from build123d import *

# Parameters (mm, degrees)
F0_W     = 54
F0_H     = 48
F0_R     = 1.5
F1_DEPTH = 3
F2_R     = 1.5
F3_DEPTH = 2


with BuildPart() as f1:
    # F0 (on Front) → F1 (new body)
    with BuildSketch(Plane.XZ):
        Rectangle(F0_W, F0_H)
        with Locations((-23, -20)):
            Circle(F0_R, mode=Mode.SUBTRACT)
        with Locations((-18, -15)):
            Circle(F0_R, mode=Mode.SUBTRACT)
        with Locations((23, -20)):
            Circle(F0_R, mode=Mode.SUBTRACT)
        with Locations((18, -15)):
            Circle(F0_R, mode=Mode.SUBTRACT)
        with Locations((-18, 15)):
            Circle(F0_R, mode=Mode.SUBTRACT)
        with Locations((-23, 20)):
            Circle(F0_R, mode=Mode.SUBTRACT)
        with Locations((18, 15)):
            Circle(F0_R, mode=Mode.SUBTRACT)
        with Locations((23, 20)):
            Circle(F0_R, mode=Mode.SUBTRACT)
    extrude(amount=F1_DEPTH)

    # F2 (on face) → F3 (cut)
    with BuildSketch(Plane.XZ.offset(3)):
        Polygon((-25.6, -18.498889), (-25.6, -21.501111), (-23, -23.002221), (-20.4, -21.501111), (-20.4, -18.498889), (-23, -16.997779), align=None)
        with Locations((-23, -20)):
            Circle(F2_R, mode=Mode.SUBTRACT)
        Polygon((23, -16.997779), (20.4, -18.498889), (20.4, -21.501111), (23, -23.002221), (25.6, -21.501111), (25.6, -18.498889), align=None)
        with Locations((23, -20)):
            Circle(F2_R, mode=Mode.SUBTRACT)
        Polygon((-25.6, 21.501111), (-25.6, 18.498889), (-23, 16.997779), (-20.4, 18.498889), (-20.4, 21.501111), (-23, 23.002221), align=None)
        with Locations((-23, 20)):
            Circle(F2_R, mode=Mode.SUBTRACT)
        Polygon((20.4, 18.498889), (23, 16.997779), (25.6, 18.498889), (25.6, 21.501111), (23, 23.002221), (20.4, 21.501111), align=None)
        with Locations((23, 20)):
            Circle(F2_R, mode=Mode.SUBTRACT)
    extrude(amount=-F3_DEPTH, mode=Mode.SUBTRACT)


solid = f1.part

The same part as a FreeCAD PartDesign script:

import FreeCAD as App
import Part
import Sketcher
Q = App.Units.Quantity

doc = App.newDocument("Part")
body = doc.addObject("PartDesign::Body", "Body")

# Sketch on XZ plane
sketch1 = body.newObject("Sketcher::SketchObject", "Sketch")
sketch1.AttachmentSupport = (doc.getObject("XZ_Plane"), [""])
sketch1.MapMode = "FlatFace"
sketch1.addGeometry(Part.LineSegment(App.Vector(-27, 24, 0), App.Vector(-27, -24, 0)), False)
sketch1.addGeometry(Part.LineSegment(App.Vector(-27, -24, 0), App.Vector(27, -24, 0)), False)
sketch1.addGeometry(Part.LineSegment(App.Vector(27, -24, 0), App.Vector(27, 24, 0)), False)
sketch1.addGeometry(Part.LineSegment(App.Vector(27, 24, 0), App.Vector(-27, 24, 0)), False)
sketch1.addGeometry(Part.Circle(App.Vector(-23, -20, 0), App.Vector(0, 0, 1), 1.5), False)
sketch1.addGeometry(Part.Circle(App.Vector(-18, -15, 0), App.Vector(0, 0, 1), 1.5), False)
sketch1.addGeometry(Part.Circle(App.Vector(23, -20, 0), App.Vector(0, 0, 1), 1.5), False)
sketch1.addGeometry(Part.Circle(App.Vector(18, -15, 0), App.Vector(0, 0, 1), 1.5), False)
sketch1.addGeometry(Part.Circle(App.Vector(-18, 15, 0), App.Vector(0, 0, 1), 1.5), False)
sketch1.addGeometry(Part.Circle(App.Vector(-23, 20, 0), App.Vector(0, 0, 1), 1.5), False)
sketch1.addGeometry(Part.Circle(App.Vector(18, 15, 0), App.Vector(0, 0, 1), 1.5), False)
sketch1.addGeometry(Part.Circle(App.Vector(23, 20, 0), App.Vector(0, 0, 1), 1.5), False)
sketch1.addConstraint(Sketcher.Constraint("Coincident", 0, 2, 1, 1))
sketch1.addConstraint(Sketcher.Constraint("Coincident", 1, 2, 2, 1))
sketch1.addConstraint(Sketcher.Constraint("Coincident", 2, 2, 3, 1))
sketch1.addConstraint(Sketcher.Constraint("Coincident", 3, 2, 0, 1))
sketch1.addConstraint(Sketcher.Constraint("Vertical", 0))
sketch1.addConstraint(Sketcher.Constraint("Horizontal", 1))
sketch1.addConstraint(Sketcher.Constraint("Vertical", 2))
sketch1.addConstraint(Sketcher.Constraint("Horizontal", 3))
sketch1.addConstraint(Sketcher.Constraint("Equal", 4, 5))
sketch1.addConstraint(Sketcher.Constraint("Equal", 5, 6))
sketch1.addConstraint(Sketcher.Constraint("Equal", 6, 7))
sketch1.addConstraint(Sketcher.Constraint("Equal", 7, 8))
sketch1.addConstraint(Sketcher.Constraint("Equal", 8, 9))
sketch1.addConstraint(Sketcher.Constraint("Equal", 9, 10))
sketch1.addConstraint(Sketcher.Constraint("Equal", 10, 11))
sketch1.addConstraint(Sketcher.Constraint("Symmetric", 7, 3, 8, 3, -1, 1))
sketch1.addConstraint(Sketcher.Constraint("Symmetric", 6, 3, 9, 3, -1, 1))
sketch1.addConstraint(Sketcher.Constraint("Symmetric", 5, 3, 10, 3, -1, 1))
sketch1.addConstraint(Sketcher.Constraint("Symmetric", 4, 3, 11, 3, -1, 1))
sketch1.addConstraint(Sketcher.Constraint("Symmetric", 0, 2, 2, 2, -1, 1))
sketch1.addConstraint(Sketcher.Constraint("Symmetric", 4, 3, 6, 3, -2))
sketch1.addConstraint(Sketcher.Constraint("Symmetric", 5, 3, 7, 3, -2))
sketch1.addConstraint(Sketcher.Constraint("Diameter", 4, 3.0))
sketch1.addConstraint(Sketcher.Constraint("DistanceX", 1, 1, 1, 2, 54.0))
sketch1.addConstraint(Sketcher.Constraint("DistanceY", 0, 2, 0, 1, 48.0))
sketch1.addConstraint(Sketcher.Constraint("DistanceX", 4, 3, -1, 1, 23.0))
sketch1.addConstraint(Sketcher.Constraint("DistanceY", 4, 3, -1, 1, 20.0))
sketch1.addConstraint(Sketcher.Constraint("DistanceX", 5, 3, -1, 1, 18.0))
sketch1.addConstraint(Sketcher.Constraint("DistanceY", 5, 3, -1, 1, 15.0))
pad1 = body.newObject("PartDesign::Pad", "Pad")
pad1.Profile = sketch1
pad1.Length = 3

# Sketch on XZ plane
sketch2 = body.newObject("Sketcher::SketchObject", "Sketch001")
sketch2.AttachmentSupport = (doc.getObject("XZ_Plane"), [""])
sketch2.MapMode = "FlatFace"
sketch2.AttachmentOffset = App.Placement(App.Vector(0, 0, 3), App.Rotation())
sketch2.addGeometry(Part.LineSegment(App.Vector(-25.6, -18.498889, 0), App.Vector(-25.6, -21.501111, 0)), False)
sketch2.addGeometry(Part.LineSegment(App.Vector(-25.6, -21.501111, 0), App.Vector(-23, -23.002221, 0)), False)
sketch2.addGeometry(Part.LineSegment(App.Vector(-23, -23.002221, 0), App.Vector(-20.4, -21.501111, 0)), False)
sketch2.addGeometry(Part.LineSegment(App.Vector(-20.4, -21.501111, 0), App.Vector(-20.4, -18.498889, 0)), False)
sketch2.addGeometry(Part.LineSegment(App.Vector(-20.4, -18.498889, 0), App.Vector(-23, -16.997779, 0)), False)
sketch2.addGeometry(Part.LineSegment(App.Vector(-23, -16.997779, 0), App.Vector(-25.6, -18.498889, 0)), False)
sketch2.addGeometry(Part.Circle(App.Vector(-23, -20, 0), App.Vector(0, 0, 1), 1.5), False)
sketch2.addGeometry(Part.LineSegment(App.Vector(23, -16.997779, 0), App.Vector(20.4, -18.498889, 0)), False)
sketch2.addGeometry(Part.LineSegment(App.Vector(20.4, -18.498889, 0), App.Vector(20.4, -21.501111, 0)), False)
sketch2.addGeometry(Part.LineSegment(App.Vector(20.4, -21.501111, 0), App.Vector(23, -23.002221, 0)), False)
sketch2.addGeometry(Part.LineSegment(App.Vector(23, -23.002221, 0), App.Vector(25.6, -21.501111, 0)), False)
sketch2.addGeometry(Part.LineSegment(App.Vector(25.6, -21.501111, 0), App.Vector(25.6, -18.498889, 0)), False)
sketch2.addGeometry(Part.LineSegment(App.Vector(25.6, -18.498889, 0), App.Vector(23, -16.997779, 0)), False)
sketch2.addGeometry(Part.Circle(App.Vector(23, -20, 0), App.Vector(0, 0, 1), 1.5), False)
sketch2.addGeometry(Part.LineSegment(App.Vector(-25.6, 21.501111, 0), App.Vector(-25.6, 18.498889, 0)), False)
sketch2.addGeometry(Part.LineSegment(App.Vector(-25.6, 18.498889, 0), App.Vector(-23, 16.997779, 0)), False)
sketch2.addGeometry(Part.LineSegment(App.Vector(-23, 16.997779, 0), App.Vector(-20.4, 18.498889, 0)), False)
sketch2.addGeometry(Part.LineSegment(App.Vector(-20.4, 18.498889, 0), App.Vector(-20.4, 21.501111, 0)), False)
sketch2.addGeometry(Part.LineSegment(App.Vector(-20.4, 21.501111, 0), App.Vector(-23, 23.002221, 0)), False)
sketch2.addGeometry(Part.LineSegment(App.Vector(-23, 23.002221, 0), App.Vector(-25.6, 21.501111, 0)), False)
sketch2.addGeometry(Part.Circle(App.Vector(-23, 20, 0), App.Vector(0, 0, 1), 1.5), False)
sketch2.addGeometry(Part.LineSegment(App.Vector(20.4, 18.498889, 0), App.Vector(23, 16.997779, 0)), False)
sketch2.addGeometry(Part.LineSegment(App.Vector(23, 16.997779, 0), App.Vector(25.6, 18.498889, 0)), False)
sketch2.addGeometry(Part.LineSegment(App.Vector(25.6, 18.498889, 0), App.Vector(25.6, 21.501111, 0)), False)
sketch2.addGeometry(Part.LineSegment(App.Vector(25.6, 21.501111, 0), App.Vector(23, 23.002221, 0)), False)
sketch2.addGeometry(Part.LineSegment(App.Vector(23, 23.002221, 0), App.Vector(20.4, 21.501111, 0)), False)
sketch2.addGeometry(Part.LineSegment(App.Vector(20.4, 21.501111, 0), App.Vector(20.4, 18.498889, 0)), False)
sketch2.addGeometry(Part.Circle(App.Vector(23, 20, 0), App.Vector(0, 0, 1), 1.5), False)
sketch2.addConstraint(Sketcher.Constraint("Coincident", 0, 2, 1, 1))
sketch2.addConstraint(Sketcher.Constraint("Coincident", 1, 2, 2, 1))
sketch2.addConstraint(Sketcher.Constraint("Coincident", 2, 2, 3, 1))
sketch2.addConstraint(Sketcher.Constraint("Coincident", 3, 2, 4, 1))
sketch2.addConstraint(Sketcher.Constraint("Coincident", 4, 2, 5, 1))
sketch2.addConstraint(Sketcher.Constraint("Coincident", 5, 2, 0, 1))
sketch2.addConstraint(Sketcher.Constraint("Coincident", 7, 2, 8, 1))
sketch2.addConstraint(Sketcher.Constraint("Coincident", 8, 2, 9, 1))
sketch2.addConstraint(Sketcher.Constraint("Coincident", 9, 2, 10, 1))
sketch2.addConstraint(Sketcher.Constraint("Coincident", 10, 2, 11, 1))
sketch2.addConstraint(Sketcher.Constraint("Coincident", 11, 2, 12, 1))
sketch2.addConstraint(Sketcher.Constraint("Coincident", 12, 2, 7, 1))
sketch2.addConstraint(Sketcher.Constraint("Coincident", 14, 2, 15, 1))
sketch2.addConstraint(Sketcher.Constraint("Coincident", 15, 2, 16, 1))
sketch2.addConstraint(Sketcher.Constraint("Coincident", 16, 2, 17, 1))
sketch2.addConstraint(Sketcher.Constraint("Coincident", 17, 2, 18, 1))
sketch2.addConstraint(Sketcher.Constraint("Coincident", 18, 2, 19, 1))
sketch2.addConstraint(Sketcher.Constraint("Coincident", 19, 2, 14, 1))
sketch2.addConstraint(Sketcher.Constraint("Coincident", 21, 2, 22, 1))
sketch2.addConstraint(Sketcher.Constraint("Coincident", 22, 2, 23, 1))
sketch2.addConstraint(Sketcher.Constraint("Coincident", 23, 2, 24, 1))
sketch2.addConstraint(Sketcher.Constraint("Coincident", 24, 2, 25, 1))
sketch2.addConstraint(Sketcher.Constraint("Coincident", 25, 2, 26, 1))
sketch2.addConstraint(Sketcher.Constraint("Coincident", 26, 2, 21, 1))
sketch2.addConstraint(Sketcher.Constraint("Vertical", 0))
sketch2.addConstraint(Sketcher.Constraint("Vertical", 3))
sketch2.addConstraint(Sketcher.Constraint("Vertical", 8))
sketch2.addConstraint(Sketcher.Constraint("Vertical", 11))
sketch2.addConstraint(Sketcher.Constraint("Vertical", 14))
sketch2.addConstraint(Sketcher.Constraint("Vertical", 17))
sketch2.addConstraint(Sketcher.Constraint("Vertical", 23))
sketch2.addConstraint(Sketcher.Constraint("Vertical", 26))
sketch2.addConstraint(Sketcher.Constraint("Equal", 6, 13))
sketch2.addConstraint(Sketcher.Constraint("Equal", 13, 20))
sketch2.addConstraint(Sketcher.Constraint("Equal", 20, 27))
sketch2.addConstraint(Sketcher.Constraint("Symmetric", 13, 3, 20, 3, -1, 1))
sketch2.addConstraint(Sketcher.Constraint("Symmetric", 6, 3, 27, 3, -1, 1))
sketch2.addConstraint(Sketcher.Constraint("Symmetric", 11, 2, 14, 2, -1, 1))
sketch2.addConstraint(Sketcher.Constraint("Symmetric", 12, 2, 15, 2, -1, 1))
sketch2.addConstraint(Sketcher.Constraint("Symmetric", 7, 2, 16, 2, -1, 1))
sketch2.addConstraint(Sketcher.Constraint("Symmetric", 9, 2, 18, 2, -1, 1))
sketch2.addConstraint(Sketcher.Constraint("Symmetric", 4, 2, 21, 2, -1, 1))
sketch2.addConstraint(Sketcher.Constraint("Symmetric", 5, 2, 22, 2, -1, 1))
sketch2.addConstraint(Sketcher.Constraint("Symmetric", 1, 2, 24, 2, -1, 1))
sketch2.addConstraint(Sketcher.Constraint("Symmetric", 2, 2, 25, 2, -1, 1))
sketch2.addConstraint(Sketcher.Constraint("Symmetric", 6, 3, 13, 3, -2))
sketch2.addConstraint(Sketcher.Constraint("Symmetric", 3, 2, 7, 2, -2))
sketch2.addConstraint(Sketcher.Constraint("Symmetric", 1, 2, 9, 2, -2))
sketch2.addConstraint(Sketcher.Constraint("Symmetric", 0, 2, 10, 2, -2))
sketch2.addConstraint(Sketcher.Constraint("Symmetric", 4, 2, 12, 2, -2))
sketch2.addConstraint(Sketcher.Constraint("Parallel", 1, 4))
sketch2.addConstraint(Sketcher.Constraint("Parallel", 2, 5))
sketch2.addConstraint(Sketcher.Constraint("Parallel", 5, 7))
sketch2.addConstraint(Sketcher.Constraint("Parallel", 4, 9))
sketch2.addConstraint(Sketcher.Constraint("Parallel", 9, 12))
sketch2.addConstraint(Sketcher.Constraint("Parallel", 15, 18))
sketch2.addConstraint(Sketcher.Constraint("Parallel", 16, 19))
sketch2.addConstraint(Sketcher.Constraint("Parallel", 18, 21))
sketch2.addConstraint(Sketcher.Constraint("Parallel", 21, 24))
sketch2.addConstraint(Sketcher.Constraint("Horizontal", 0, 2, 2, 2))
sketch2.addConstraint(Sketcher.Constraint("Horizontal", 3, 2, 5, 2))
sketch2.addConstraint(Sketcher.Constraint("Vertical", 20, 3, 1, 2))
sketch2.addConstraint(Sketcher.Constraint("Diameter", 6, 3.0))
sketch2.addConstraint(Sketcher.Constraint("Angle", 1, Q("-29.999988 deg")))
sketch2.addConstraint(Sketcher.Constraint("DistanceX", 6, 3, -1, 1, 23.0))
sketch2.addConstraint(Sketcher.Constraint("DistanceY", 6, 3, -1, 1, 20.0))
sketch2.addConstraint(Sketcher.Constraint("DistanceY", 11, 2, 23, 2, 40.0))
sketch2.addConstraint(Sketcher.Constraint("DistanceX", 0, 2, -1, 1, 25.6))
sketch2.addConstraint(Sketcher.Constraint("DistanceY", 0, 2, 0, 1, 3.002222))
pocket1 = body.newObject("PartDesign::Pocket", "Pocket")
pocket1.Profile = sketch2
pocket1.Length = 2

doc.recompute()
